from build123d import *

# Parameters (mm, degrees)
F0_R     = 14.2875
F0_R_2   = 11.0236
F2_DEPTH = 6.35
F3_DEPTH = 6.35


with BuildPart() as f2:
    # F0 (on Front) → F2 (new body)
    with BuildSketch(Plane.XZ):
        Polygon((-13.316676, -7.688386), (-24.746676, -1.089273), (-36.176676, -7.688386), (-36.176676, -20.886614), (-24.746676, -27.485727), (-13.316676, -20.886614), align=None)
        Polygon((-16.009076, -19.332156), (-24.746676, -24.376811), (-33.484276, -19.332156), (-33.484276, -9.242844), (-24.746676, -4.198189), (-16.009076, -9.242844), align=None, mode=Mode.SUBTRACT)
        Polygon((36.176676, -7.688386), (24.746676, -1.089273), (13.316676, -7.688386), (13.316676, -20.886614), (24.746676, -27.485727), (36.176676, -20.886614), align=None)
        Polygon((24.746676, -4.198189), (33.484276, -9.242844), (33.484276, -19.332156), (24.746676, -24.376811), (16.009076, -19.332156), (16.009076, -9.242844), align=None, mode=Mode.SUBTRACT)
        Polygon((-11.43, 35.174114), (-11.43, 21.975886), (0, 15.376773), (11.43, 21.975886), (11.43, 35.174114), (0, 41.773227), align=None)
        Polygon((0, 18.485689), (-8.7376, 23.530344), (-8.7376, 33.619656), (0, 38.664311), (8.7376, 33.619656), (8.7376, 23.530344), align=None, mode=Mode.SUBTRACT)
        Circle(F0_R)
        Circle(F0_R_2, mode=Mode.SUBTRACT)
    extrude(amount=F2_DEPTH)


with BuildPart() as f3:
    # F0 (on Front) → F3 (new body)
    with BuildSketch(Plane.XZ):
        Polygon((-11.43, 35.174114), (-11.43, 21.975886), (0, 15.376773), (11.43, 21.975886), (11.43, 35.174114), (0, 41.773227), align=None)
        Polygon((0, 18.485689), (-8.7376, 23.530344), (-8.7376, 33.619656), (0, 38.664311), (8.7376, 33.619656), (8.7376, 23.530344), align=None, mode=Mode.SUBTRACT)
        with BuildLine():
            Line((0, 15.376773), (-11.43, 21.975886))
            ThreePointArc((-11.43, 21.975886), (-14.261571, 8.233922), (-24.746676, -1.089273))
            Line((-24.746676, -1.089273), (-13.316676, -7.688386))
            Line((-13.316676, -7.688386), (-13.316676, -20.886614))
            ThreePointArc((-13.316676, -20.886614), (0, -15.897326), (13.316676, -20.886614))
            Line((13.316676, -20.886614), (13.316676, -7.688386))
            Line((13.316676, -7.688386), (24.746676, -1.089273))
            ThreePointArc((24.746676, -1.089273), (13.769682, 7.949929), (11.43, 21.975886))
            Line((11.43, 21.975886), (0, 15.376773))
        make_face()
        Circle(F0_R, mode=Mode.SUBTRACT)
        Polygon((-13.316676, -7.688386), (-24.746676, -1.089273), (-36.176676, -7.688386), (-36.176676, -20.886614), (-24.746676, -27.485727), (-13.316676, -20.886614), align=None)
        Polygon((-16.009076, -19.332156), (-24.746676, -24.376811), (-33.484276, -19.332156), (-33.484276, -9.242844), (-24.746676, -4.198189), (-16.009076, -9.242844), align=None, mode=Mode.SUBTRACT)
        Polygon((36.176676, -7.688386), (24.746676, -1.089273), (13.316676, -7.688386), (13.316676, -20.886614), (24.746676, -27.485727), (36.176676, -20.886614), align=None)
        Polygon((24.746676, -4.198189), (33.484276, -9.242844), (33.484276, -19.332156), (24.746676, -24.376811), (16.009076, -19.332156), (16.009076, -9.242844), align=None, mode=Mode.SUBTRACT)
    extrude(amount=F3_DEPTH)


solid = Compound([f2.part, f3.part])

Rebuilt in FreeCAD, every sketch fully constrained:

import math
import FreeCAD as App
import Part
import Sketcher
Q = App.Units.Quantity


def add_polygon(sketch, points):
    """Adds a closed chain of lines whose ends are joined by coincident constraints."""
    first, n = sketch.GeometryCount, len(points)
    for a, b in zip(points, points[1:] + points[:1]):
        sketch.addGeometry(Part.LineSegment(App.Vector(*a, 0), App.Vector(*b, 0)), False)
    for i in range(n):
        sketch.addConstraint(Sketcher.Constraint("Coincident", first + i, 2, first + (i + 1) % n, 1))

doc = App.newDocument("Part")
body = doc.addObject("PartDesign::Body", "Body")
body.AllowCompound = True

sketch1 = body.newObject("Sketcher::SketchObject", "Sketch")
sketch1.AttachmentSupport = (doc.getObject("XZ_Plane"), [""])
sketch1.MapMode = "FlatFace"
add_polygon(sketch1, [(-13.316676, -7.688386), (-24.746676, -1.089273), (-36.176676, -7.688386), (-36.176676, -20.886614), (-24.746676, -27.485727), (-13.316676, -20.886614)])
add_polygon(sketch1, [(-16.009076, -9.242844), (-16.009076, -19.332156), (-24.746676, -24.376811), (-33.484276, -19.332156), (-33.484276, -9.242844), (-24.746676, -4.198189)])
add_polygon(sketch1, [(36.176676, -7.688386), (24.746676, -1.089273), (13.316676, -7.688386), (13.316676, -20.886614), (24.746676, -27.485727), (36.176676, -20.886614)])
add_polygon(sketch1, [(16.009076, -9.242844), (24.746676, -4.198189), (33.484276, -9.242844), (33.484276, -19.332156), (24.746676, -24.376811), (16.009076, -19.332156)])
add_polygon(sketch1, [(-11.43, 35.174114), (-11.43, 21.975886), (0, 15.376773), (11.43, 21.975886), (11.43, 35.174114), (0, 41.773227)])
add_polygon(sketch1, [(8.7376, 23.530344), (0, 18.485689), (-8.7376, 23.530344), (-8.7376, 33.619656), (0, 38.664311), (8.7376, 33.619656)])
sketch1.addGeometry(Part.Circle(App.Vector(0, 0, 0), App.Vector(0, 0, 1), 14.2875), False)
sketch1.addGeometry(Part.Circle(App.Vector(0, 0, 0), App.Vector(0, 0, 1), 11.0236), False)
sketch1.addConstraint(Sketcher.Constraint("Vertical", 2))
sketch1.addConstraint(Sketcher.Constraint("Vertical", 5))
sketch1.addConstraint(Sketcher.Constraint("Vertical", 6))
sketch1.addConstraint(Sketcher.Constraint("Vertical", 9))
sketch1.addConstraint(Sketcher.Constraint("Vertical", 14))
sketch1.addConstraint(Sketcher.Constraint("Vertical", 17))
sketch1.addConstraint(Sketcher.Constraint("Vertical", 20))
sketch1.addConstraint(Sketcher.Constraint("Vertical", 23))
sketch1.addConstraint(Sketcher.Constraint("Vertical", 24))
sketch1.addConstraint(Sketcher.Constraint("Vertical", 27))
sketch1.addConstraint(Sketcher.Constraint("Vertical", 32))
sketch1.addConstraint(Sketcher.Constraint("Vertical", 35))
sketch1.addConstraint(Sketcher.Constraint("Coincident", 36, 3, -1, 1))
sketch1.addConstraint(Sketcher.Constraint("Coincident", 37, 3, -1, 1))
sketch1.addConstraint(Sketcher.Constraint("Symmetric", 0, 2, 12, 2, -2))
sketch1.addConstraint(Sketcher.Constraint("Symmetric", 5, 2, 13, 2, -2))
sketch1.addConstraint(Sketcher.Constraint("Symmetric", 3, 2, 15, 2, -2))
sketch1.addConstraint(Sketcher.Constraint("Symmetric", 2, 2, 16, 2, -2))
sketch1.addConstraint(Sketcher.Constraint("Symmetric", 10, 2, 18, 2, -2))
sketch1.addConstraint(Sketcher.Constraint("Symmetric", 9, 2, 19, 2, -2))
sketch1.addConstraint(Sketcher.Constraint("Symmetric", 7, 2, 21, 2, -2))
sketch1.addConstraint(Sketcher.Constraint("Symmetric", 6, 2, 22, 2, -2))
sketch1.addConstraint(Sketcher.Constraint("Symmetric", 24, 2, 26, 2, -2))
sketch1.addConstraint(Sketcher.Constraint("Symmetric", 32, 2, 34, 2, -2))
sketch1.addConstraint(Sketcher.Constraint("PointOnObject", 25, 2, -2))
sketch1.addConstraint(Sketcher.Constraint("PointOnObject", 28, 2, -2))
sketch1.addConstraint(Sketcher.Constraint("PointOnObject", 30, 2, -2))
sketch1.addConstraint(Sketcher.Constraint("PointOnObject", 33, 2, -2))
sketch1.addConstraint(Sketcher.Constraint("Parallel", 0, 3))
sketch1.addConstraint(Sketcher.Constraint("Parallel", 1, 4))
sketch1.addConstraint(Sketcher.Constraint("Parallel", 4, 7))
sketch1.addConstraint(Sketcher.Constraint("Parallel", 3, 8))
sketch1.addConstraint(Sketcher.Constraint("Parallel", 7, 10))
sketch1.addConstraint(Sketcher.Constraint("Parallel", 8, 11))
sketch1.addConstraint(Sketcher.Constraint("Parallel", 11, 12))
sketch1.addConstraint(Sketcher.Constraint("Parallel", 10, 13))
sketch1.addConstraint(Sketcher.Constraint("Parallel", 12, 15))
sketch1.addConstraint(Sketcher.Constraint("Parallel", 16, 18))
sketch1.addConstraint(Sketcher.Constraint("Parallel", 18, 21))
sketch1.addConstraint(Sketcher.Constraint("Parallel", 22, 25))
sketch1.addConstraint(Sketcher.Constraint("Parallel", 25, 28))
sketch1.addConstraint(Sketcher.Constraint("Parallel", 26, 29))
sketch1.addConstraint(Sketcher.Constraint("Parallel", 29, 30))
sketch1.addConstraint(Sketcher.Constraint("Parallel", 28, 31))
sketch1.addConstraint(Sketcher.Constraint("Parallel", 30, 33))
sketch1.addConstraint(Sketcher.Constraint("Horizontal", 2, 2, 4, 2))
sketch1.addConstraint(Sketcher.Constraint("Horizontal", 1, 2, 5, 2))
sketch1.addConstraint(Sketcher.Constraint("Horizontal", 6, 2, 8, 2))
sketch1.addConstraint(Sketcher.Constraint("Horizontal", 9, 2, 11, 2))
sketch1.addConstraint(Sketcher.Constraint("Vertical", 3, 2, 7, 2))
sketch1.addConstraint(Sketcher.Constraint("Equal", 17, 24))
sketch1.addConstraint(Sketcher.Constraint("Equal", 23, 32))
sketch1.addConstraint(Sketcher.Constraint("Equal", 16, 25))
sketch1.addConstraint(Sketcher.Constraint("Equal", 22, 30))
sketch1.addConstraint(Sketcher.Constraint("Diameter", 36, Q("1.125 in")))
sketch1.addConstraint(Sketcher.Constraint("Diameter", 37, Q("0.868 in")))
sketch1.addConstraint(Sketcher.Constraint("Angle", 0, Q("150.000002 deg")))
sketch1.addConstraint(Sketcher.Constraint("DistanceX", 2, 2, 4, 2, Q("0.9 in")))
sketch1.addConstraint(Sketcher.Constraint("DistanceX", 31, 2, -1, 1, Q("0.344 in")))
sketch1.addConstraint(Sketcher.Constraint("DistanceY", 24, 2, 24, 1, 13.198228))
sketch1.addConstraint(Sketcher.Constraint("DistanceY", 6, 2, 6, 1, 10.089312))
sketch1.addConstraint(Sketcher.Constraint("DistanceY", 7, 2, -1, 1, 24.376811))
sketch1.addConstraint(Sketcher.Constraint("DistanceY", -1, 1, 30, 2, 18.485689))
sketch1.addConstraint(Sketcher.Constraint("DistanceY", 4, 2, 6, 2, 1.554458))
sketch1.addConstraint(Sketcher.Constraint("DistanceX", 5, 2, 13, 2, 26.633352))
sketch1.addConstraint(Sketcher.Constraint("DistanceY", 0, 2, 24, 2, 23.065159))
pad1 = body.newObject("PartDesign::Pad", "Pad")
pad1.Profile = sketch1
pad1.Length = Q("0.25 in")
body2 = doc.addObject("PartDesign::Body", "Body001")

sketch2 = body2.newObject("Sketcher::SketchObject", "Sketch001")
sketch2.AttachmentSupport = (doc.getObject("XZ_Plane001"), [""])
sketch2.MapMode = "FlatFace"
sketch2.addGeometry(Part.LineSegment(App.Vector(-11.43, 35.174114, 0), App.Vector(-11.43, 21.975886, 0)), False)
sketch2.addGeometry(Part.ArcOfCircle(Part.Circle(App.Vector(-33.5526, 19.371602, 0), App.Vector(0, 0, 1), 22.275361), math.radians(-66.713989), math.radians(6.713988)), False)
sketch2.addGeometry(Part.LineSegment(App.Vector(-24.746676, -1.089273, 0), App.Vector(-36.176676, -7.688386, 0)), False)
sketch2.addGeometry(Part.LineSegment(App.Vector(-36.176676, -7.688386, 0), App.Vector(-36.176676, -20.886614, 0)), False)
sketch2.addGeometry(Part.LineSegment(App.Vector(-36.176676, -20.886614, 0), App.Vector(-24.746676, -27.485727, 0)), False)
sketch2.addGeometry(Part.LineSegment(App.Vector(-24.746676, -27.485727, 0), App.Vector(-13.316676, -20.886614, 0)), False)
sketch2.addGeometry(Part.ArcOfCircle(Part.Circle(App.Vector(0, -36.16343, 0), App.Vector(0, 0, 1), 20.266104), math.radians(48.921602), math.radians(131.078398)), False)
sketch2.addGeometry(Part.LineSegment(App.Vector(13.316676, -20.886614, 0), App.Vector(24.746676, -27.485727, 0)), False)
sketch2.addGeometry(Part.LineSegment(App.Vector(24.746676, -27.485727, 0), App.Vector(36.176676, -20.886614, 0)), False)
sketch2.addGeometry(Part.LineSegment(App.Vector(36.176676, -20.886614, 0), App.Vector(36.176676, -7.688386, 0)), False)
sketch2.addGeometry(Part.LineSegment(App.Vector(36.176676, -7.688386, 0), App.Vector(24.746676, -1.089273, 0)), False)
sketch2.addGeometry(Part.ArcOfCircle(Part.Circle(App.Vector(31.327364, 18.086862, 0), App.Vector(0, 0, 1), 20.273865), math.radians(168.94072), math.radians(251.059281)), False)
sketch2.addGeometry(Part.LineSegment(App.Vector(11.43, 21.975886, 0), App.Vector(11.43, 35.174114, 0)), False)
sketch2.addGeometry(Part.LineSegment(App.Vector(11.43, 35.174114, 0), App.Vector(0, 41.773227, 0)), False)
sketch2.addGeometry(Part.LineSegment(App.Vector(0, 41.773227, 0), App.Vector(-11.43, 35.174114, 0)), False)
add_polygon(sketch2, [(-16.009076, -9.242844), (-16.009076, -19.332156), (-24.746676, -24.376811), (-33.484276, -19.332156), (-33.484276, -9.242844), (-24.746676, -4.198189)])
add_polygon(sketch2, [(16.009076, -9.242844), (24.746676, -4.198189), (33.484276, -9.242844), (33.484276, -19.332156), (24.746676, -24.376811), (16.009076, -19.332156)])
sketch2.addGeometry(Part.Circle(App.Vector(0, 0, 0), App.Vector(0, 0, 1), 14.2875), False)
add_polygon(sketch2, [(8.7376, 23.530344), (0, 18.485689), (-8.7376, 23.530344), (-8.7376, 33.619656), (0, 38.664311), (8.7376, 33.619656)])
sketch2.addConstraint(Sketcher.Constraint("Coincident", 0, 2, 1, 2))
sketch2.addConstraint(Sketcher.Constraint("Coincident", 1, 1, 2, 1))
sketch2.addConstraint(Sketcher.Constraint("Coincident", 2, 2, 3, 1))
sketch2.addConstraint(Sketcher.Constraint("Coincident", 3, 2, 4, 1))
sketch2.addConstraint(Sketcher.Constraint("Coincident", 4, 2, 5, 1))
sketch2.addConstraint(Sketcher.Constraint("Coincident", 5, 2, 6, 2))
sketch2.addConstraint(Sketcher.Constraint("Coincident", 6, 1, 7, 1))
sketch2.addConstraint(Sketcher.Constraint("Coincident", 7, 2, 8, 1))
sketch2.addConstraint(Sketcher.Constraint("Coincident", 8, 2, 9, 1))
sketch2.addConstraint(Sketcher.Constraint("Coincident", 9, 2, 10, 1))
sketch2.addConstraint(Sketcher.Constraint("Coincident", 10, 2, 11, 2))
sketch2.addConstraint(Sketcher.Constraint("Coincident", 11, 1, 12, 1))
sketch2.addConstraint(Sketcher.Constraint("Coincident", 12, 2, 13, 1))
sketch2.addConstraint(Sketcher.Constraint("Coincident", 13, 2, 14, 1))
sketch2.addConstraint(Sketcher.Constraint("Coincident", 14, 2, 0, 1))
sketch2.addConstraint(Sketcher.Constraint("Vertical", 0))
sketch2.addConstraint(Sketcher.Constraint("Vertical", 3))
sketch2.addConstraint(Sketcher.Constraint("Vertical", 9))
sketch2.addConstraint(Sketcher.Constraint("Vertical", 12))
sketch2.addConstraint(Sketcher.Constraint("Vertical", 15))
sketch2.addConstraint(Sketcher.Constraint("Vertical", 18))
sketch2.addConstraint(Sketcher.Constraint("Vertical", 23))
sketch2.addConstraint(Sketcher.Constraint("Vertical", 26))
sketch2.addConstraint(Sketcher.Constraint("Vertical", 30))
sketch2.addConstraint(Sketcher.Constraint("Vertical", 33))
sketch2.addConstraint(Sketcher.Constraint("Coincident", 27, 3, -1, 1))
sketch2.addConstraint(Sketcher.Constraint("Symmetric", 5, 2, 6, 1, -2))
sketch2.addConstraint(Sketcher.Constraint("Symmetric", 4, 2, 7, 2, -2))
sketch2.addConstraint(Sketcher.Constraint("Symmetric", 3, 2, 8, 2, -2))
sketch2.addConstraint(Sketcher.Constraint("Symmetric", 1, 1, 10, 2, -2))
sketch2.addConstraint(Sketcher.Constraint("Symmetric", 0, 2, 11, 1, -2))
sketch2.addConstraint(Sketcher.Constraint("Symmetric", 19, 2, 21, 2, -2))
sketch2.addConstraint(Sketcher.Constraint("Symmetric", 18, 2, 22, 2, -2))
sketch2.addConstraint(Sketcher.Constraint("Symmetric", 16, 2, 24, 2, -2))
sketch2.addConstraint(Sketcher.Constraint("Symmetric", 15, 2, 25, 2, -2))
sketch2.addConstraint(Sketcher.Constraint("Symmetric", 30, 2, 32, 2, -2))
sketch2.addConstraint(Sketcher.Constraint("PointOnObject", 13, 2, -2))
sketch2.addConstraint(Sketcher.Constraint("PointOnObject", 28, 2, -2))
sketch2.addConstraint(Sketcher.Constraint("PointOnObject", 31, 2, -2))
sketch2.addConstraint(Sketcher.Constraint("Parallel", 2, 5))
sketch2.addConstraint(Sketcher.Constraint("Parallel", 4, 7))
sketch2.addConstraint(Sketcher.Constraint("Parallel", 7, 10))
sketch2.addConstraint(Sketcher.Constraint("Parallel", 10, 13))
sketch2.addConstraint(Sketcher.Constraint("Parallel", 8, 14))
sketch2.addConstraint(Sketcher.Constraint("Parallel", 14, 16))
sketch2.addConstraint(Sketcher.Constraint("Parallel", 13, 17))
sketch2.addConstraint(Sketcher.Constraint("Parallel", 16, 19))
sketch2.addConstraint(Sketcher.Constraint("Parallel", 17, 20))
sketch2.addConstraint(Sketcher.Constraint("Parallel", 19, 21))
sketch2.addConstraint(Sketcher.Constraint("Parallel", 21, 24))
sketch2.addConstraint(Sketcher.Constraint("Parallel", 24, 28))
sketch2.addConstraint(Sketcher.Constraint("Parallel", 25, 29))
sketch2.addConstraint(Sketcher.Constraint("Parallel", 28, 31))
sketch2.addConstraint(Sketcher.Constraint("Horizontal", 3, 2, 5, 2))
sketch2.addConstraint(Sketcher.Constraint("Horizontal", 15, 2, 17, 2))
sketch2.addConstraint(Sketcher.Constraint("Horizontal", 18, 2, 20, 2))
sketch2.addConstraint(Sketcher.Constraint("Vertical", 1, 1, 4, 2))
sketch2.addConstraint(Sketcher.Constraint("Vertical", 4, 2, 16, 2))
sketch2.addConstraint(Sketcher.Constraint("Equal", 0, 3))
sketch2.addConstraint(Sketcher.Constraint("Equal", 26, 30))
sketch2.addConstraint(Sketcher.Constraint("Equal", 10, 13))
sketch2.addConstraint(Sketcher.Constraint("Equal", 25, 28))
sketch2.addConstraint(Sketcher.Constraint("Diameter", 27, Q("1.125 in")))
sketch2.addConstraint(Sketcher.Constraint("Angle", 2, Q("-150.000002 deg")))
sketch2.addConstraint(Sketcher.Constraint("DistanceX", 3, 2, 5, 2, Q("0.9 in")))
sketch2.addConstraint(Sketcher.Constraint("DistanceX", 29, 2, -1, 1, Q("0.344 in")))
sketch2.addConstraint(Sketcher.Constraint("Radius", 1, 22.275361))
sketch2.addConstraint(Sketcher.Constraint("Radius", 6, 20.266104))
sketch2.addConstraint(Sketcher.Constraint("Radius", 11, 20.273865))
sketch2.addConstraint(Sketcher.Constraint("DistanceY", 0, 2, 0, 1, 13.198228))
sketch2.addConstraint(Sketcher.Constraint("DistanceX", 1, 3, -1, 1, 33.5526))
sketch2.addConstraint(Sketcher.Constraint("DistanceY", 15, 2, 15, 1, 10.089312))
sketch2.addConstraint(Sketcher.Constraint("DistanceY", 6, 3, -1, 1, 36.16343))
sketch2.addConstraint(Sketcher.Constraint("DistanceY", -1, 1, 11, 3, 18.086862))
sketch2.addConstraint(Sketcher.Constraint("DistanceY", 16, 2, -1, 1, 24.376811))
sketch2.addConstraint(Sketcher.Constraint("DistanceY", -1, 1, 28, 2, 18.485689))
pad2 = body2.newObject("PartDesign::Pad", "Pad001")
pad2.Profile = sketch2
pad2.Length = Q("0.25 in")

doc.recompute()
